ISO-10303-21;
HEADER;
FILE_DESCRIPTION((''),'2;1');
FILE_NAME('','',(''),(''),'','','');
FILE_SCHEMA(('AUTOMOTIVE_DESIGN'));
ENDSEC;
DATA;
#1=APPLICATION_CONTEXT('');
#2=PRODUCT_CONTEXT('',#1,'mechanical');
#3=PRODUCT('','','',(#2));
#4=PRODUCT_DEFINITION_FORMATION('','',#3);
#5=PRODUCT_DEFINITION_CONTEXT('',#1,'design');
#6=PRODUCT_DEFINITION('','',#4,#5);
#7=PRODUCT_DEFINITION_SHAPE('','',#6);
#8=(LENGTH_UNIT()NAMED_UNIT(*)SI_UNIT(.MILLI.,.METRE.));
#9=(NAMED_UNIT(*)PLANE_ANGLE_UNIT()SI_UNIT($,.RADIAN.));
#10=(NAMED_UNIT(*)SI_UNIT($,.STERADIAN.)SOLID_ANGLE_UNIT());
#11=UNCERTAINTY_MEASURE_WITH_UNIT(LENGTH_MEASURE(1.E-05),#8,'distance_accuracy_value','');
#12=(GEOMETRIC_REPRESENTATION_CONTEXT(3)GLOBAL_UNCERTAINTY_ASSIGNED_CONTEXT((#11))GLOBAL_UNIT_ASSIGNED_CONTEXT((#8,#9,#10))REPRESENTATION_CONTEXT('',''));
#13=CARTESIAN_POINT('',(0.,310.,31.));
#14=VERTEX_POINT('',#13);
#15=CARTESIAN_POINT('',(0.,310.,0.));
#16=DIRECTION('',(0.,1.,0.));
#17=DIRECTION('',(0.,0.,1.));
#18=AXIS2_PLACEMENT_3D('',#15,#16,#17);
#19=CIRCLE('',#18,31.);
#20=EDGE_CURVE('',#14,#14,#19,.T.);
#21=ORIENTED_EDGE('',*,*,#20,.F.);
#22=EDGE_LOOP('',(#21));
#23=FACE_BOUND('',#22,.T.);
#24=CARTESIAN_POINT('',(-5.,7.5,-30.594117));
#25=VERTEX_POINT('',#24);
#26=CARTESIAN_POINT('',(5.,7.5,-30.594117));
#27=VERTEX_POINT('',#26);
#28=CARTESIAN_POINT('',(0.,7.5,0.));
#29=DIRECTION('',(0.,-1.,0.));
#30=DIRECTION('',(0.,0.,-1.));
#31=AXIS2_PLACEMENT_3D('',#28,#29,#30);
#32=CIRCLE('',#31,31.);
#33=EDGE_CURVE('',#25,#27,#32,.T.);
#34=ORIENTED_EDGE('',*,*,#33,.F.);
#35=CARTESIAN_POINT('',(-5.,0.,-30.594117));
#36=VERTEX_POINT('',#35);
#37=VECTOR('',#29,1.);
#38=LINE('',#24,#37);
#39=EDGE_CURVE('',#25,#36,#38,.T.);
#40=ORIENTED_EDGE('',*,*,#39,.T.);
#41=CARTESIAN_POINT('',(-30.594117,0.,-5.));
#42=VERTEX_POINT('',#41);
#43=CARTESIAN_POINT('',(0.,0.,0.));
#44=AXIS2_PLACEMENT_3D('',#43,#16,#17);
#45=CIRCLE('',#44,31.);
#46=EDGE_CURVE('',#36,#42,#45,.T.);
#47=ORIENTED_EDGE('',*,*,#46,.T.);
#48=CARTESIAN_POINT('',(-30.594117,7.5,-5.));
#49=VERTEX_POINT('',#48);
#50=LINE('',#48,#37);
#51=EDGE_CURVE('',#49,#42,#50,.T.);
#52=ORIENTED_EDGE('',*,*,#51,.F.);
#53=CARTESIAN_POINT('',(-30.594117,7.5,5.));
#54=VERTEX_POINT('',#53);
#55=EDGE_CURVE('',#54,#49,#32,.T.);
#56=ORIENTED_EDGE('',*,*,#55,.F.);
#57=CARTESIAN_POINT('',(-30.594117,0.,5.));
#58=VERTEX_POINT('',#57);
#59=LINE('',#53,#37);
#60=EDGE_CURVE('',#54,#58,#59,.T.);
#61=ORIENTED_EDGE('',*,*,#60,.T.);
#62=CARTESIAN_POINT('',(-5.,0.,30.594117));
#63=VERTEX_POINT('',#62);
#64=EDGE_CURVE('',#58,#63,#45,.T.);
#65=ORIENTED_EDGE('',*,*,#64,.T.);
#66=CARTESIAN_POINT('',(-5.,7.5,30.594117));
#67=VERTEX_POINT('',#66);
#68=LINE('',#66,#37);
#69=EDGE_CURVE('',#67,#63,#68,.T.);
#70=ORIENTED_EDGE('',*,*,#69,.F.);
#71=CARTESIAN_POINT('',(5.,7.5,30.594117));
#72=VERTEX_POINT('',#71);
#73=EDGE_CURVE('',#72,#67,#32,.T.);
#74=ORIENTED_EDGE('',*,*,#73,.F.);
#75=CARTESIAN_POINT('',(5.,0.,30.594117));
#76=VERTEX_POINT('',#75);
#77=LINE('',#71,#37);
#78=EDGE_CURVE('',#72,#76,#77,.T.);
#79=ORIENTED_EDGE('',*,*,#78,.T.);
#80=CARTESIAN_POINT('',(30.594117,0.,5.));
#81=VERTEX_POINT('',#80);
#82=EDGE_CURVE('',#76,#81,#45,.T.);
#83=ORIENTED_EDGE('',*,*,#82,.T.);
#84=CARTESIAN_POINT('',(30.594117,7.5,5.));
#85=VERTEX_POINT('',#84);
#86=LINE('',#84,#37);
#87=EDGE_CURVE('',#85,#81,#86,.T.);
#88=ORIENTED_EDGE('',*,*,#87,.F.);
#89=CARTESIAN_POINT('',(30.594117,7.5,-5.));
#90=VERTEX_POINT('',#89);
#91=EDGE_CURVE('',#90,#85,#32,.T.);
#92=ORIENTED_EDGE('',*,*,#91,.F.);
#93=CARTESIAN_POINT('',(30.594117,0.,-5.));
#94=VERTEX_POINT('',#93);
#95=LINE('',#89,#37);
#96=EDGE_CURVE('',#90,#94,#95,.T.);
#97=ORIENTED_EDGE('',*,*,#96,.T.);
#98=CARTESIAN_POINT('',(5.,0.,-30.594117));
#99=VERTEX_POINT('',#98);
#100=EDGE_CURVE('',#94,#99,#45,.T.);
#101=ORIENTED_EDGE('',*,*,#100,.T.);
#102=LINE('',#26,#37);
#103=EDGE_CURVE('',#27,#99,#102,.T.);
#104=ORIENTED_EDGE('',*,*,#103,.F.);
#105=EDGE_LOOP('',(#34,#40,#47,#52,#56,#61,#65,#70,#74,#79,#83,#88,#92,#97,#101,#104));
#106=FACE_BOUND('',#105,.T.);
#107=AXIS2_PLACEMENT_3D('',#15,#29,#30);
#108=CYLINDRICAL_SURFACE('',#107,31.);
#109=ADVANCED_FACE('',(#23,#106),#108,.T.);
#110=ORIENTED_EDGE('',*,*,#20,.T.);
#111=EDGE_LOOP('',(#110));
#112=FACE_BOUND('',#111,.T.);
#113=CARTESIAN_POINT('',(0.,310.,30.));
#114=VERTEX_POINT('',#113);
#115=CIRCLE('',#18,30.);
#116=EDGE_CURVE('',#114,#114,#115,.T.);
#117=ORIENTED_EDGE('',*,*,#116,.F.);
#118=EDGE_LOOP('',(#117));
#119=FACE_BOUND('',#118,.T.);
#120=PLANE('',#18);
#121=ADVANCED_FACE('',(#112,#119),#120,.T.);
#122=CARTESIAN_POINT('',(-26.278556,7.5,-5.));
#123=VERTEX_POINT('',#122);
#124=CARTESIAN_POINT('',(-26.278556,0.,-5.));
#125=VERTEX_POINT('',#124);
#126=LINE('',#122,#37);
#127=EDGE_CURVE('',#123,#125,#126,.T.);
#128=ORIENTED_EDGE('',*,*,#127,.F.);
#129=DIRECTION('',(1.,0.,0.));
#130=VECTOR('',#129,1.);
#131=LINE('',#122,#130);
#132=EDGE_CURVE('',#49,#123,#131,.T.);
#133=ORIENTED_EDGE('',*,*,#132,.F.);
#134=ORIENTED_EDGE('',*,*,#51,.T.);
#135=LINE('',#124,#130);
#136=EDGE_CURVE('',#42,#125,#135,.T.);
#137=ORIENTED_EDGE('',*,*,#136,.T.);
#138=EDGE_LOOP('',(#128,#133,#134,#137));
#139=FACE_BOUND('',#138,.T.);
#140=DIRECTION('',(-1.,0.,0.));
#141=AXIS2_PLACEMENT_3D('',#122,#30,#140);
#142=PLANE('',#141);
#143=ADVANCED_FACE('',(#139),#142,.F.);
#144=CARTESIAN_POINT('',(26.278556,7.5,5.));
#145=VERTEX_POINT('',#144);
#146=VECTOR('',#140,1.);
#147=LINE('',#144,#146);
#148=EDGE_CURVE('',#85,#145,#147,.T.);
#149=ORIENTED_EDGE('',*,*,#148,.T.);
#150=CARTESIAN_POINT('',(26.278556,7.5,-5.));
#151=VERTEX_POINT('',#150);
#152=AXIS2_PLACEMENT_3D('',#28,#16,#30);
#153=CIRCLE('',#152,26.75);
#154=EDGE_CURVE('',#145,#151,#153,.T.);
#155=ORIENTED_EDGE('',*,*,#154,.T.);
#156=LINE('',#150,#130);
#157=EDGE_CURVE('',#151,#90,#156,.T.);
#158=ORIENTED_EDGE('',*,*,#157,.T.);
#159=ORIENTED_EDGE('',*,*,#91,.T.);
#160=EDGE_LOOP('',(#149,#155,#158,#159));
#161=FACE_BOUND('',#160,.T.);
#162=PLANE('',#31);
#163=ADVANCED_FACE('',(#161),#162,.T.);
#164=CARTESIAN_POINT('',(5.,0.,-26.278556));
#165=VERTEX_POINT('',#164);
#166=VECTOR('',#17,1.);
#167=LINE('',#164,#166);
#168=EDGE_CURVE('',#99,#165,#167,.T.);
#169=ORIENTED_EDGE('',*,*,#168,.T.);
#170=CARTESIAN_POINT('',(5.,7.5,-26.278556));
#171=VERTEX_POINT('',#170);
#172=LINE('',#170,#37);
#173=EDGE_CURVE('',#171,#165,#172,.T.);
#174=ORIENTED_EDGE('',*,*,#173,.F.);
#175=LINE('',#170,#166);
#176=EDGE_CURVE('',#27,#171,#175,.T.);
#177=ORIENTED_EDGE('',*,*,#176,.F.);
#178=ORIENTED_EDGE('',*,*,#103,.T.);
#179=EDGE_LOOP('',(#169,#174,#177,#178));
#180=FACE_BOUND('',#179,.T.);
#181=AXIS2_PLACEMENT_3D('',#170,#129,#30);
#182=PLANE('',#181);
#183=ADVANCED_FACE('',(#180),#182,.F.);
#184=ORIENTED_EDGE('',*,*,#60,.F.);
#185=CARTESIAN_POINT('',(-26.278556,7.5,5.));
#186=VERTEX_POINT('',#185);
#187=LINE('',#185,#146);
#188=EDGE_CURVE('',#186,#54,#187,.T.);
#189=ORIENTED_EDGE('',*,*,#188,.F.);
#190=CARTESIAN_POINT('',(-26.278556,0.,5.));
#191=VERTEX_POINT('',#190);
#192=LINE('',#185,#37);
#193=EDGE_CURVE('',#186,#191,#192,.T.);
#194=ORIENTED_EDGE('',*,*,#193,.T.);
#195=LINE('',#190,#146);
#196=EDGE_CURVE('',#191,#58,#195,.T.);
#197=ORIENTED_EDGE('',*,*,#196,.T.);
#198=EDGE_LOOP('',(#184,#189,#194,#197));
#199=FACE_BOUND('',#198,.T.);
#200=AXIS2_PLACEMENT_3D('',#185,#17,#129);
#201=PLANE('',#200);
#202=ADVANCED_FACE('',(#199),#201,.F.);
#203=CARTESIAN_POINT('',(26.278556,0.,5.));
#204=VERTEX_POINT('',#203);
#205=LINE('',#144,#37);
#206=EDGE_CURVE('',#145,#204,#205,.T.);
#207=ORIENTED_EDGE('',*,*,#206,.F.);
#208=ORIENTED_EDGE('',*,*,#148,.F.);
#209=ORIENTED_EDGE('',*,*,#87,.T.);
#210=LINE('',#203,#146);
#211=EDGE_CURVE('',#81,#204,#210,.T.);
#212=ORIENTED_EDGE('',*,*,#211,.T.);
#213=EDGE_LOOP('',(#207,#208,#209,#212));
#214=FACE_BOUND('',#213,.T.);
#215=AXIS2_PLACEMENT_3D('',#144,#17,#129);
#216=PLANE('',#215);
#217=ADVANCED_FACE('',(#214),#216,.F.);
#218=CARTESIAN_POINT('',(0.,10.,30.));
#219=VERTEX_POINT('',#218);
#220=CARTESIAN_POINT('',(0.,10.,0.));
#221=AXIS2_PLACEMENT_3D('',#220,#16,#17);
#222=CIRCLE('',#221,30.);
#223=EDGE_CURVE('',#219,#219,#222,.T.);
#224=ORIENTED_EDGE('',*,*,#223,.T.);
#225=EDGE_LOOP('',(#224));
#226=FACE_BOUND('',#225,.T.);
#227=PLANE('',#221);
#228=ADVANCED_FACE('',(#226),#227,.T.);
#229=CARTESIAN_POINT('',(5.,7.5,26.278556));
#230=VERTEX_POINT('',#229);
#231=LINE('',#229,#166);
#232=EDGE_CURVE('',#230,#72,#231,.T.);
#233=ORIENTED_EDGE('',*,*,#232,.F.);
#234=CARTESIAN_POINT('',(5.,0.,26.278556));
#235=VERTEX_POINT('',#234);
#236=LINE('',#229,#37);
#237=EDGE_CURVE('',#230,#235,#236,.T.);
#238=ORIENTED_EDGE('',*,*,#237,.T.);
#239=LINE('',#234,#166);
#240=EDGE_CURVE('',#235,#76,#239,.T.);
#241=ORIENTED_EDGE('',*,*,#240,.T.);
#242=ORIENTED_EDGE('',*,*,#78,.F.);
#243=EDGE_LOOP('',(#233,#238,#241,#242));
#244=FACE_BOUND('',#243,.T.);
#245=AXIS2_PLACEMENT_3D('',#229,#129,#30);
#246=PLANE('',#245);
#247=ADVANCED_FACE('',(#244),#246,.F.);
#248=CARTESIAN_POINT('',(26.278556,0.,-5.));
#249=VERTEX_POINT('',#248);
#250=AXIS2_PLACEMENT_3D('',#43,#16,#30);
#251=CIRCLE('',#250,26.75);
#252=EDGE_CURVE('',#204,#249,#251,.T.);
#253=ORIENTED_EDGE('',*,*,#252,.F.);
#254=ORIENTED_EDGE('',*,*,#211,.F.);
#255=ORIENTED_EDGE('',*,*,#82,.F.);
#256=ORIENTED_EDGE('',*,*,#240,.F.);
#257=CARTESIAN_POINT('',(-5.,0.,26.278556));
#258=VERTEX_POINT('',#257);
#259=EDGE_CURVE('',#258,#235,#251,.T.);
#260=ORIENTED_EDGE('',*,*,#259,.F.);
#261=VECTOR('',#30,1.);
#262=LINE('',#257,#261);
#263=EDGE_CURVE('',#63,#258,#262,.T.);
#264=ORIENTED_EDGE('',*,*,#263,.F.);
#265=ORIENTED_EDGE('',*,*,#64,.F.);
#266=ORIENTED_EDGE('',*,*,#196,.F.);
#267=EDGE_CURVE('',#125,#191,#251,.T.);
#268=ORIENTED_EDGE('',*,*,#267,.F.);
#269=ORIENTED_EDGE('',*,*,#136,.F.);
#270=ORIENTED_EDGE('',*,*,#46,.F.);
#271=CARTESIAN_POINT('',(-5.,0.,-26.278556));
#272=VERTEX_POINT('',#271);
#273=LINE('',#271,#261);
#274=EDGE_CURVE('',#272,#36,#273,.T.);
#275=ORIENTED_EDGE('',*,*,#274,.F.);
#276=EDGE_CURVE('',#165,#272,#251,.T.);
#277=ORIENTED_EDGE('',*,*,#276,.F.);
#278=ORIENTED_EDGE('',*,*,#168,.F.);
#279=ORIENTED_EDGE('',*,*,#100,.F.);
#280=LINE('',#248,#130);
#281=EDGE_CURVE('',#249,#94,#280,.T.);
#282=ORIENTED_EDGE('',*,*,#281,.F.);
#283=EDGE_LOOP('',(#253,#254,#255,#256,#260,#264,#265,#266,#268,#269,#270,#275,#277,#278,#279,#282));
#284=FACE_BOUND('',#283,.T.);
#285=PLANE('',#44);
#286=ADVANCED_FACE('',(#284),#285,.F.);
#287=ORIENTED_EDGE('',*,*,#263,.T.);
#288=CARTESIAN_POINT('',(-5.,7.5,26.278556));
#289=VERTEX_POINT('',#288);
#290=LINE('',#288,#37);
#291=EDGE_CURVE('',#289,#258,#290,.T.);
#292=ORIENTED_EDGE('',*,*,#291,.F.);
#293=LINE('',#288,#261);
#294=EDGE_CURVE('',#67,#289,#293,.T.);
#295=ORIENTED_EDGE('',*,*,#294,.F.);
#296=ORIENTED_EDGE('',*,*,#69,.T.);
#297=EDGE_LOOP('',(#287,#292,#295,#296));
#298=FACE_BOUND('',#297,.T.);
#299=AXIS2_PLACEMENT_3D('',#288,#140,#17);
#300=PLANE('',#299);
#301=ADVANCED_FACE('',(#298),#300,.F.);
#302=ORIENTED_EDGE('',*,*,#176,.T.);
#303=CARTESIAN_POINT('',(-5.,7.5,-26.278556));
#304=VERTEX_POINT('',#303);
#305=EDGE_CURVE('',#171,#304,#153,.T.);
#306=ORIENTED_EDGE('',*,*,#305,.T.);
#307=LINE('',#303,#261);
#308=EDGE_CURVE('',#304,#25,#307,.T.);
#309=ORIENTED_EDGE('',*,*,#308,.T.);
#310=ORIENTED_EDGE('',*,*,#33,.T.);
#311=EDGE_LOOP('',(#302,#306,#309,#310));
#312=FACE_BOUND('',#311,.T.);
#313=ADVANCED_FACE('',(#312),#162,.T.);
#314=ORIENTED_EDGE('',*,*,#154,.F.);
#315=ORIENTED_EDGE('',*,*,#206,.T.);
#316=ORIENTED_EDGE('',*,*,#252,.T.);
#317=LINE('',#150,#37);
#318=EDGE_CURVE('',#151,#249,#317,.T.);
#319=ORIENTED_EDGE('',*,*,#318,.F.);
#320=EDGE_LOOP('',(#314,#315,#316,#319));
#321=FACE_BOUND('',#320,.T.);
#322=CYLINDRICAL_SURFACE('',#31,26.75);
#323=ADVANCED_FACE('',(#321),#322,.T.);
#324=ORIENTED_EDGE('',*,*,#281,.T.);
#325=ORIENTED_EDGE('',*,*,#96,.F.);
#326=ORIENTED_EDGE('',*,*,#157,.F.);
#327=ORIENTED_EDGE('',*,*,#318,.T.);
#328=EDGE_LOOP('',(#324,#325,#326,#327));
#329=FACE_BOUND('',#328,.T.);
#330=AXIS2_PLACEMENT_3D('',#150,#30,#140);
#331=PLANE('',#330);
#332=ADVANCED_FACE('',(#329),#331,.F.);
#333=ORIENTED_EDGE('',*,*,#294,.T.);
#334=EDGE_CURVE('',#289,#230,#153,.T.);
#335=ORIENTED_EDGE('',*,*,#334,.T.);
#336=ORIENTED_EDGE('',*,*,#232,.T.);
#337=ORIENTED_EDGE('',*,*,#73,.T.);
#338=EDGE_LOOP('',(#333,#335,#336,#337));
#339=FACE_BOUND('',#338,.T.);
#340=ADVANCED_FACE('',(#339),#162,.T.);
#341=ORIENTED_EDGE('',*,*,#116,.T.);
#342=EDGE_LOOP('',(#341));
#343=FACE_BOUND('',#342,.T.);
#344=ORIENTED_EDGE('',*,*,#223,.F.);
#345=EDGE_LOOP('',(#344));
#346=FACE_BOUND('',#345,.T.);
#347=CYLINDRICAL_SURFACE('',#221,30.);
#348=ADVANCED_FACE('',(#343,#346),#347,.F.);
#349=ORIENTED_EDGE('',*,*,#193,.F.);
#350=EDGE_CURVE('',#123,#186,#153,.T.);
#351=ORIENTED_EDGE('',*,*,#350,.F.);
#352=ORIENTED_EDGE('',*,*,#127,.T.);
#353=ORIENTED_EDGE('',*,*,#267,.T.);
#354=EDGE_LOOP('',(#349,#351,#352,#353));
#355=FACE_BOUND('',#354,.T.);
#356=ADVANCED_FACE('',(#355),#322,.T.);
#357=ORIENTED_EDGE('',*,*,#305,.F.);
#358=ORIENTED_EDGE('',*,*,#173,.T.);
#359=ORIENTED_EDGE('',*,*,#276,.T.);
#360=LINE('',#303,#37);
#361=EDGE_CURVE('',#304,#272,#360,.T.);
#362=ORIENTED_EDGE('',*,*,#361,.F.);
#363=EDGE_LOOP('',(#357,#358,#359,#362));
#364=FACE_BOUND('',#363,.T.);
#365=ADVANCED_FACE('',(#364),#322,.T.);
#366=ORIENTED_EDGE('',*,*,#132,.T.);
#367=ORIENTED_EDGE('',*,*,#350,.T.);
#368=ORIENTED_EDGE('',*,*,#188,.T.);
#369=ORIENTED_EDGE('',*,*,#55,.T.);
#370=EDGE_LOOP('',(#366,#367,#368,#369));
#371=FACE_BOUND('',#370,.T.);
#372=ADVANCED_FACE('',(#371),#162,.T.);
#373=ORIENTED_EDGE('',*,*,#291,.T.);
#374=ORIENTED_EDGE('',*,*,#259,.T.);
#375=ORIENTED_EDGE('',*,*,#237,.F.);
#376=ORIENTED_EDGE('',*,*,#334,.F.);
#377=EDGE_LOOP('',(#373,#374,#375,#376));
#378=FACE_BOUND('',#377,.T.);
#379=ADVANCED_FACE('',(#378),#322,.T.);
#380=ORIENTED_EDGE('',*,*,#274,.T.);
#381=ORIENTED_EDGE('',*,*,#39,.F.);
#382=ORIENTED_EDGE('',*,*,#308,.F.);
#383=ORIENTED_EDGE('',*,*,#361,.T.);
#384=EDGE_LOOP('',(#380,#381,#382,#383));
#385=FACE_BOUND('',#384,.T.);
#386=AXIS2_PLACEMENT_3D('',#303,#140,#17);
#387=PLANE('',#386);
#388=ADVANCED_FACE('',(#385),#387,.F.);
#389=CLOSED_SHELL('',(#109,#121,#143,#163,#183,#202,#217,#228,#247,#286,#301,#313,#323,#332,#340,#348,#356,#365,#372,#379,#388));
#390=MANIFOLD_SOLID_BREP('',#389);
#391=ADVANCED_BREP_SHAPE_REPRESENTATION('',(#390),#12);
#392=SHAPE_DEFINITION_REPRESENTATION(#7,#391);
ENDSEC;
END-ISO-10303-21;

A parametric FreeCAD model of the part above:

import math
import FreeCAD as App
import Part
import Sketcher

V = App.Vector
Q = App.Units.Quantity

doc = App.newDocument("Part")
params = doc.addObject("Spreadsheet::Sheet", "Params")
for row, (alias, value) in enumerate([
    ("sketch1_diameter", "62 mm"),
    ("pad1_length", "310 mm"),
    ("sketch2_diameter", "60 mm"),
    ("pocket1_length", "300 mm"),
    ("sketch3_radius", "31 mm"),
    ("sketch3_radius2", "26.75 mm"),
    ("pocket2_length", "7.5 mm"),
], start=1):
    params.set(f"A{row}", alias)
    params.set(f"B{row}", "=" + value)
    params.setAlias(f"B{row}", alias)

body = doc.addObject("PartDesign::Body", "Body")

# Sketch on XZ plane
sketch1 = body.newObject("Sketcher::SketchObject", "Sketch")
sketch1.AttachmentSupport = (doc.getObject("XZ_Plane"), [""])
sketch1.MapMode = "FlatFace"
sketch1.addGeometry(Part.Circle(V(0, 0, 0), V(0, 0, 1), 31), False)
sketch1.addConstraint([
    Sketcher.Constraint("Coincident", 0, 3, -1, 1),
    Sketcher.Constraint("Diameter", 0, Q("62 mm")),
])
sketch1.setExpression("Constraints[1]", "Params.sketch1_diameter")
pad1 = body.newObject("PartDesign::Pad", "Pad")
pad1.Profile = sketch1
pad1.setExpression("Length", "Params.pad1_length")
pad1.Reversed = True

# Sketch on XZ plane
sketch2 = body.newObject("Sketcher::SketchObject", "Sketch001")
sketch2.AttachmentSupport = (doc.getObject("XZ_Plane"), [""])
sketch2.MapMode = "FlatFace"
sketch2.AttachmentOffset = App.Placement(V(0, 0, -310), App.Rotation())
sketch2.addGeometry(Part.Circle(V(0, 0, 0), V(0, 0, 1), 30), False)
sketch2.addConstraint([
    Sketcher.Constraint("Coincident", 0, 3, -1, 1),
    Sketcher.Constraint("Diameter", 0, Q("60 mm")),
])
sketch2.setExpression("Constraints[1]", "Params.sketch2_diameter")
pocket1 = body.newObject("PartDesign::Pocket", "Pocket")
pocket1.Profile = sketch2
pocket1.setExpression("Length", "Params.pocket1_length")
pocket1.Reversed = True

# Sketch on XZ plane
sketch3 = body.newObject("Sketcher::SketchObject", "Sketch002")
sketch3.AttachmentSupport = (doc.getObject("XZ_Plane"), [""])
sketch3.MapMode = "FlatFace"
sketch3.addGeometry([
    Part.LineSegment(V(-30.6, -5, 0), V(-26.3, -5, 0)),  # 0
    Part.ArcOfCircle(Part.Circle(V(0, 0, 0), V(0, 0, 1), 26.7), math.radians(169), math.radians(191)),  # 1
    Part.LineSegment(V(-26.3, 5, 0), V(-30.6, 5, 0)),  # 2
    Part.ArcOfCircle(Part.Circle(V(0, 0, 0), V(0, 0, 1), 31), math.radians(170.72), math.radians(189.28)),  # 3
    Part.LineSegment(V(-5, -26.3, 0), V(-5, -30.6, 0)),  # 4
    Part.ArcOfCircle(Part.Circle(V(0, 0, 0), V(0, 0, 1), 31), math.radians(-99.28), math.radians(-80.72)),  # 5
    Part.LineSegment(V(5, -30.6, 0), V(5, -26.3, 0)),  # 6
    Part.ArcOfCircle(Part.Circle(V(0, 0, 0), V(0, 0, 1), 26.7), math.radians(-101), math.radians(-79)),  # 7
    Part.LineSegment(V(-5, 30.6, 0), V(-5, 26.3, 0)),  # 8
    Part.ArcOfCircle(Part.Circle(V(0, 0, 0), V(0, 0, 1), 26.7), math.radians(79), math.radians(101)),  # 9
    Part.LineSegment(V(5, 26.3, 0), V(5, 30.6, 0)),  # 10
    Part.ArcOfCircle(Part.Circle(V(0, 0, 0), V(0, 0, 1), 31), math.radians(80.72), math.radians(99.28)),  # 11
    Part.LineSegment(V(30.6, 5, 0), V(26.3, 5, 0)),  # 12
    Part.ArcOfCircle(Part.Circle(V(0, 0, 0), V(0, 0, 1), 26.7), math.radians(-11), math.radians(11)),  # 13
    Part.LineSegment(V(26.3, -5, 0), V(30.6, -5, 0)),  # 14
    Part.ArcOfCircle(Part.Circle(V(0, 0, 0), V(0, 0, 1), 31), math.radians(-9.28), math.radians(9.28)),  # 15
], False)
sketch3.addConstraint([
    Sketcher.Constraint("Coincident", 0, 2, 1, 2),
    Sketcher.Constraint("Coincident", 1, 1, 2, 1),
    Sketcher.Constraint("Coincident", 2, 2, 3, 1),
    Sketcher.Constraint("Coincident", 3, 2, 0, 1),
    Sketcher.Constraint("Coincident", 4, 2, 5, 1),
    Sketcher.Constraint("Coincident", 5, 2, 6, 1),
    Sketcher.Constraint("Coincident", 6, 2, 7, 2),
    Sketcher.Constraint("Coincident", 7, 1, 4, 1),
    Sketcher.Constraint("Coincident", 8, 2, 9, 2),
    Sketcher.Constraint("Coincident", 9, 1, 10, 1),
    Sketcher.Constraint("Coincident", 10, 2, 11, 1),
    Sketcher.Constraint("Coincident", 11, 2, 8, 1),
    Sketcher.Constraint("Coincident", 12, 2, 13, 2),
    Sketcher.Constraint("Coincident", 13, 1, 14, 1),
    Sketcher.Constraint("Coincident", 14, 2, 15, 1),
    Sketcher.Constraint("Coincident", 15, 2, 12, 1),
    Sketcher.Constraint("Horizontal", 0),
    Sketcher.Constraint("Horizontal", 2),
    Sketcher.Constraint("Vertical", 4),
    Sketcher.Constraint("Vertical", 6),
    Sketcher.Constraint("Vertical", 8),
    Sketcher.Constraint("Vertical", 10),
    Sketcher.Constraint("Horizontal", 12),
    Sketcher.Constraint("Horizontal", 14),
    Sketcher.Constraint("Coincident", 1, 3, -1, 1),
    Sketcher.Constraint("Coincident", 3, 3, -1, 1),
    Sketcher.Constraint("Coincident", 5, 3, -1, 1),
    Sketcher.Constraint("Coincident", 7, 3, -1, 1),
    Sketcher.Constraint("Coincident", 9, 3, -1, 1),
    Sketcher.Constraint("Coincident", 11, 3, -1, 1),
    Sketcher.Constraint("Coincident", 13, 3, -1, 1),
    Sketcher.Constraint("Coincident", 15, 3, -1, 1),
    Sketcher.Constraint("Equal", 3, 5),
    Sketcher.Constraint("Equal", 1, 7),
    Sketcher.Constraint("Equal", 7, 9),
    Sketcher.Constraint("Equal", 5, 11),
    Sketcher.Constraint("Equal", 9, 13),
    Sketcher.Constraint("Equal", 11, 15),
    Sketcher.Constraint("Horizontal", 4, 2, 5, 2),
    Sketcher.Constraint("Horizontal", 8, 2, 9, 1),
    Sketcher.Constraint("Horizontal", 2, 2, 12, 2),
    Sketcher.Constraint("Horizontal", 3, 2, 13, 1),
    Sketcher.Constraint("Vertical", 0, 2, 1, 1),
    Sketcher.Constraint("Vertical", 7, 1, 8, 2),
    Sketcher.Constraint("Equal", 14, 4),
    Sketcher.Constraint("Radius", 3, Q("31 mm")),
    Sketcher.Constraint("Radius", 1, Q("26.75 mm")),
    Sketcher.Constraint("DistanceY", 0, 2, -1, 1, Q("5 mm")),
])
sketch3.setExpression("Constraints[45]", "Params.sketch3_radius")
sketch3.setExpression("Constraints[46]", "Params.sketch3_radius2")
pocket2 = body.newObject("PartDesign::Pocket", "Pocket001")
pocket2.Profile = sketch3
pocket2.setExpression("Length", "Params.pocket2_length")

doc.recompute()
